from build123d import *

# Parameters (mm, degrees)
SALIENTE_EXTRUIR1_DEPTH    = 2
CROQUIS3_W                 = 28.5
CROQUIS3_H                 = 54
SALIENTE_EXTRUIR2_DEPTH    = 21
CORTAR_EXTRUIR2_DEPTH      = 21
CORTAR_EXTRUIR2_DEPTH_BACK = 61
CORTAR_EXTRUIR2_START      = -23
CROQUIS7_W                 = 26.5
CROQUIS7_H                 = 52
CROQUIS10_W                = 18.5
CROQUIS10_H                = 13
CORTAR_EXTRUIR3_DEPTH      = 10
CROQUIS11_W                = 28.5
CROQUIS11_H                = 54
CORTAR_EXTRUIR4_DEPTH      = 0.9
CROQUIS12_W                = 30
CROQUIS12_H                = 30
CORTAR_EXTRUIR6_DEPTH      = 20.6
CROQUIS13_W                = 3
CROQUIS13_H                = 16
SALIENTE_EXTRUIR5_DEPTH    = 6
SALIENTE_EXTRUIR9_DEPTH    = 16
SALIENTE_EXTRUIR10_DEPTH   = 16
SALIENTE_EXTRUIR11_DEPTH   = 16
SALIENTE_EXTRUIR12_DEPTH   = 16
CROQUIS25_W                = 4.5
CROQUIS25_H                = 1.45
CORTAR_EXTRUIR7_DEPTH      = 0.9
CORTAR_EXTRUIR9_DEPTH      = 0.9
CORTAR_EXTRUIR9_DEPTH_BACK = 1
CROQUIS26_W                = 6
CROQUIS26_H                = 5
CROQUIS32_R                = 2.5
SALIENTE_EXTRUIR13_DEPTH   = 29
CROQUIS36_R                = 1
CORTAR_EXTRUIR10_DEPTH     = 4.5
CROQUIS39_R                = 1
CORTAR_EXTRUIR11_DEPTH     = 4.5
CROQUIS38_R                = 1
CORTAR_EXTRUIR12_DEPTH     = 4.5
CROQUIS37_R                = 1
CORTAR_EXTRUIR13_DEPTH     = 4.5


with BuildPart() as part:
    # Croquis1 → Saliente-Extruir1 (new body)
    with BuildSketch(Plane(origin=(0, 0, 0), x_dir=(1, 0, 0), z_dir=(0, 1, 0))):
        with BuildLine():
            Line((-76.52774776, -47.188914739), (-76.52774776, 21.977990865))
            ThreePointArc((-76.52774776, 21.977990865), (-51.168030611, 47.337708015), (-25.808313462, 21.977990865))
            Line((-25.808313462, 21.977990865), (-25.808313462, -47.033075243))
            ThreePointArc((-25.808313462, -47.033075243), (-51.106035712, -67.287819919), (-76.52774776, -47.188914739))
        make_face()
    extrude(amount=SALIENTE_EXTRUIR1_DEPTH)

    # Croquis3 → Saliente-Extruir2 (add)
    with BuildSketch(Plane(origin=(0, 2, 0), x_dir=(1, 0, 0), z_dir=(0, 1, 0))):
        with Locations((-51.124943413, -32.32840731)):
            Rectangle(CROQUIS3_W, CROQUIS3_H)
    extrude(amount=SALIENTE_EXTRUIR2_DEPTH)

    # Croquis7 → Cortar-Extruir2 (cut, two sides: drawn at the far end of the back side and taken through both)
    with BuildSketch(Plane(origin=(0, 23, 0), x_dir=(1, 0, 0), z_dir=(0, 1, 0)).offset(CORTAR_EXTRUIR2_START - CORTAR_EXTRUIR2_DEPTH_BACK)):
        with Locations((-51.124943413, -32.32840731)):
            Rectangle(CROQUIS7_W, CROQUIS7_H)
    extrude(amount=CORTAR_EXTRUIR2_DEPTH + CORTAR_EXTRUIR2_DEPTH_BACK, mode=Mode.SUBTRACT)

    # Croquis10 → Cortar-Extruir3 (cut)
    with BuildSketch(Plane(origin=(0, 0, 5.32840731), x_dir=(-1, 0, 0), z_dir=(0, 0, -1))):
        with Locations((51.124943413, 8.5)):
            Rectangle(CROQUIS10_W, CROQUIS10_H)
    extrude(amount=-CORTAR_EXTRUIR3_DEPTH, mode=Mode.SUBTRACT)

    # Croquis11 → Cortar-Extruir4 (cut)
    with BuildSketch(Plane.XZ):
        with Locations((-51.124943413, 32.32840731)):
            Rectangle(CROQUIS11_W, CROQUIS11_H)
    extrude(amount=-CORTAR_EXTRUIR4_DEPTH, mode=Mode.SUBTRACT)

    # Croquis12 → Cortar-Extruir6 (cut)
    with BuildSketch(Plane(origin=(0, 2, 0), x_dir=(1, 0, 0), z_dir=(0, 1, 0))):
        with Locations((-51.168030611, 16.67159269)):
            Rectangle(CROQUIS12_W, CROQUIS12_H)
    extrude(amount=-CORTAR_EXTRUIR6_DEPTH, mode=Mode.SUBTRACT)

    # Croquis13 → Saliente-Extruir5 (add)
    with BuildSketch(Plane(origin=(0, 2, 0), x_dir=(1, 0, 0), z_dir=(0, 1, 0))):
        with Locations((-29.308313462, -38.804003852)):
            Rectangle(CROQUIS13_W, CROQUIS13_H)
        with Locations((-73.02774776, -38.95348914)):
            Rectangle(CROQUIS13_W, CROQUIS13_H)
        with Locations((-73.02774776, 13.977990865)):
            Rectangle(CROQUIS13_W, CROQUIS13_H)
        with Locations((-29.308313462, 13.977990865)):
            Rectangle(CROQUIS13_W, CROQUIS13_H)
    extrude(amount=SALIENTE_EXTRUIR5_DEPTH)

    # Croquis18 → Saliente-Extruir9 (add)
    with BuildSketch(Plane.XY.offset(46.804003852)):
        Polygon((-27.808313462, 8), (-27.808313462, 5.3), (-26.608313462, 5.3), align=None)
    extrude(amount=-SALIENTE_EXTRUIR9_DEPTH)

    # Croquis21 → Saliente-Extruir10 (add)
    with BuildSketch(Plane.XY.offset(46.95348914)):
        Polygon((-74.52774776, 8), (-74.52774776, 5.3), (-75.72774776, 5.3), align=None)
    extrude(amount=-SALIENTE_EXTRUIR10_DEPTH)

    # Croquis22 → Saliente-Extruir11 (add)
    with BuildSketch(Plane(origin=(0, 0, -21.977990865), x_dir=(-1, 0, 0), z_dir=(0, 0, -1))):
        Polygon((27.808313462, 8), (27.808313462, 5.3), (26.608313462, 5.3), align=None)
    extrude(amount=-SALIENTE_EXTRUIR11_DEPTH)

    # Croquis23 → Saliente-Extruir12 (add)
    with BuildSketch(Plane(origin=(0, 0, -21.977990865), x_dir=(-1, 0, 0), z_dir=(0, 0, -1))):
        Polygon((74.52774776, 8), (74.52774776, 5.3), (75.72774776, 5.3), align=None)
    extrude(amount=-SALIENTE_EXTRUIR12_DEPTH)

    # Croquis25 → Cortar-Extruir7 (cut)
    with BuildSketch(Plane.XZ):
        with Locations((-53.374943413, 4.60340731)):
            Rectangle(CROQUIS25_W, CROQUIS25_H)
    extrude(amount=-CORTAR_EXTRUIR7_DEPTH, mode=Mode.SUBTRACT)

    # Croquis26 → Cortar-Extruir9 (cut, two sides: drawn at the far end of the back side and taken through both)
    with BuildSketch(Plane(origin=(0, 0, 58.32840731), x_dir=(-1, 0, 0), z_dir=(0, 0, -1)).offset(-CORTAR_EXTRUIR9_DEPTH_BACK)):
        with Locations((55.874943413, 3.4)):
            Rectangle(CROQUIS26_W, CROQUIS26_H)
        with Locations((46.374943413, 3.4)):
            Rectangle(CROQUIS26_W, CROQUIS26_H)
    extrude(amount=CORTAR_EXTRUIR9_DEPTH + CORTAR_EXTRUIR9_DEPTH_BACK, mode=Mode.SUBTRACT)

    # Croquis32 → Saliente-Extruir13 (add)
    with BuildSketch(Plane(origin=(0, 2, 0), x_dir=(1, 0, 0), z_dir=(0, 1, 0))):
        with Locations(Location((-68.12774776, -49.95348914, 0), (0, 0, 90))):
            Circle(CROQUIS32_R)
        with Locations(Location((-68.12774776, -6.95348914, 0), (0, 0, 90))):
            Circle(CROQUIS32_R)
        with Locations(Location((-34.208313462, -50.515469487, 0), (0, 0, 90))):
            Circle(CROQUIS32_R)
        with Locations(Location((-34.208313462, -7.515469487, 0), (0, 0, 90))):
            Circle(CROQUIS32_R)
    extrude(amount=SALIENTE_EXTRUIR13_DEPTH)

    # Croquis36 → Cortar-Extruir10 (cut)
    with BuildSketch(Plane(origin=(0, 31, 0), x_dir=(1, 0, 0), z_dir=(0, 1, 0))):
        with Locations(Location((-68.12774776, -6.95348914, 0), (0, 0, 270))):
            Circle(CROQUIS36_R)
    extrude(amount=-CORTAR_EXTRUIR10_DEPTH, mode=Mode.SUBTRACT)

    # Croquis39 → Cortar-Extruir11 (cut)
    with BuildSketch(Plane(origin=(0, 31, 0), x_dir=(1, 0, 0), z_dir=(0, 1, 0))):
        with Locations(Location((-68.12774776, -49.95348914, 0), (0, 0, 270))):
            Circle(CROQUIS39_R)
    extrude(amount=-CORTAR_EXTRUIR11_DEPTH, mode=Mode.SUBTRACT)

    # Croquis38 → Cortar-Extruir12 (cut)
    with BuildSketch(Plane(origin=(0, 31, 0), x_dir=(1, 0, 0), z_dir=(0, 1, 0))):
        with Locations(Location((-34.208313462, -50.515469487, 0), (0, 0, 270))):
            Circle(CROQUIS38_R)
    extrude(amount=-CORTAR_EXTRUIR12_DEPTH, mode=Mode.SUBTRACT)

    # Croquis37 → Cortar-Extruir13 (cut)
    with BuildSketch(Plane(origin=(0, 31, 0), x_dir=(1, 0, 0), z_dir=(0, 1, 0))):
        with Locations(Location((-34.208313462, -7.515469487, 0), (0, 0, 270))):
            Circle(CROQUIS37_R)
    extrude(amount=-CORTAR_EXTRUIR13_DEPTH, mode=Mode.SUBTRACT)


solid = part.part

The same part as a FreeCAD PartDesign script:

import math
import FreeCAD as App
import Part
import Sketcher
from FreeCAD import Vector
Q = App.Units.Quantity


def add_polygon(sketch, points):
    """Adds a closed chain of lines whose ends are joined by coincident constraints."""
    first, n = sketch.GeometryCount, len(points)
    for a, b in zip(points, points[1:] + points[:1]):
        sketch.addGeometry(Part.LineSegment(App.Vector(*a, 0), App.Vector(*b, 0)), False)
    for i in range(n):
        sketch.addConstraint(Sketcher.Constraint("Coincident", first + i, 2, first + (i + 1) % n, 1))

doc = App.newDocument("Part")
body = doc.addObject("PartDesign::Body", "Body")

# Sketch on XZ plane
sketch1 = body.newObject("Sketcher::SketchObject", "Sketch")
sketch1.AttachmentSupport = (doc.getObject("XZ_Plane"), [""])
sketch1.MapMode = "FlatFace"
sketch1.addGeometry([
    Part.LineSegment(Vector(-77, -22, 0), Vector(-77, 47, 0)),
    Part.ArcOfCircle(Part.Circle(Vector(-51, 41, 0), Vector(0, 0, 1), 26), math.radians(13), math.radians(167)),
    Part.LineSegment(Vector(-26, 47, 0), Vector(-26, -22, 0)),
    Part.ArcOfCircle(Part.Circle(Vector(-51, -22, 0), Vector(0, 0, 1), 25), math.radians(180), math.radians(360)),
], False)
sketch1.addConstraint([
    Sketcher.Constraint("Coincident", 0, 2, 1, 2),
    Sketcher.Constraint("Coincident", 1, 1, 2, 1),
    Sketcher.Constraint("Tangent", 2, 2, 3, 2),
    Sketcher.Constraint("Tangent", 3, 1, 0, 1),
    Sketcher.Constraint("Vertical", 0),
    Sketcher.Constraint("Vertical", 2),
    Sketcher.Constraint("DistanceX", 1, 3, -1, 1, Q("51.186001 mm")),
    Sketcher.Constraint("Radius", 1, Q("26.025514 mm")),
    Sketcher.Constraint("Radius", 3, Q("25.359717 mm")),
    Sketcher.Constraint("DistanceY", 0, 1, 0, 2, Q("69.166906 mm")),
    Sketcher.Constraint("DistanceY", 2, 2, 2, 1, Q("69.011066 mm")),
    Sketcher.Constraint("DistanceY", -1, 1, 1, 3, Q("41.262429 mm")),
])
pad1 = body.newObject("PartDesign::Pad", "Pad")
pad1.Profile = sketch1
pad1.Length = 2
pad1.Reversed = True

# Sketch on XZ plane
sketch2 = body.newObject("Sketcher::SketchObject", "Sketch001")
sketch2.AttachmentSupport = (doc.getObject("XZ_Plane"), [""])
sketch2.MapMode = "FlatFace"
sketch2.AttachmentOffset = App.Placement(Vector(0, 0, -2), App.Rotation())
add_polygon(sketch2, [(-65, 5), (-65, 59), (-37, 59), (-37, 5)])  # lines 0-3
sketch2.addConstraint([
    Sketcher.Constraint("Vertical", 0),
    Sketcher.Constraint("Horizontal", 1),
    Sketcher.Constraint("Vertical", 2),
    Sketcher.Constraint("Horizontal", 3),
    Sketcher.Constraint("DistanceY", 0, 1, 0, 2, Q("54 mm")),
    Sketcher.Constraint("DistanceX", 1, 1, 1, 2, Q("28.5 mm")),
    Sketcher.Constraint("DistanceX", 0, 2, -1, 1, Q("65.374943 mm")),
    Sketcher.Constraint("DistanceY", -1, 1, 0, 2, Q("59.328407 mm")),
])
pad2 = body.newObject("PartDesign::Pad", "Pad001")
pad2.Profile = sketch2
pad2.Length = 21
pad2.Reversed = True

# Sketch on XZ plane
sketch3 = body.newObject("Sketcher::SketchObject", "Sketch002")
sketch3.AttachmentSupport = (doc.getObject("XZ_Plane"), [""])
sketch3.MapMode = "FlatFace"
add_polygon(sketch3, [(-64, 6), (-64, 58), (-38, 58), (-38, 6)])  # lines 0-3
sketch3.addConstraint([
    Sketcher.Constraint("Vertical", 0),
    Sketcher.Constraint("Horizontal", 1),
    Sketcher.Constraint("Vertical", 2),
    Sketcher.Constraint("Horizontal", 3),
    Sketcher.Constraint("DistanceY", 0, 1, 0, 2, Q("52 mm")),
    Sketcher.Constraint("DistanceX", 1, 1, 1, 2, Q("26.5 mm")),
    Sketcher.Constraint("DistanceX", 0, 2, -1, 1, Q("64.374943 mm")),
    Sketcher.Constraint("DistanceY", -1, 1, 0, 2, Q("58.328407 mm")),
])
pocket1 = body.newObject("PartDesign::Pocket", "Pocket")
pocket1.Profile = sketch3
pocket1.Type = "TwoLengths"
pocket1.Length = 21
pocket1.Length2 = 61

# Sketch on XY plane
sketch4 = body.newObject("Sketcher::SketchObject", "Sketch003")
sketch4.AttachmentSupport = (doc.getObject("XY_Plane"), [""])
sketch4.MapMode = "FlatFace"
sketch4.AttachmentOffset = App.Placement(Vector(0, 0, 5.328407), App.Rotation())
add_polygon(sketch4, [(-42, 15), (-42, 2), (-60, 2), (-60, 15)])  # lines 0-3
sketch4.addConstraint([
    Sketcher.Constraint("Vertical", 0),
    Sketcher.Constraint("Horizontal", 1),
    Sketcher.Constraint("Vertical", 2),
    Sketcher.Constraint("Horizontal", 3),
    Sketcher.Constraint("DistanceY", 0, 2, 0, 1, Q("13 mm")),
    Sketcher.Constraint("DistanceX", 1, 2, 1, 1, Q("18.5 mm")),
    Sketcher.Constraint("DistanceY", -1, 1, 0, 2, Q("2 mm")),
    Sketcher.Constraint("DistanceX", 0, 2, -1, 1, Q("41.874943 mm")),
])
pocket2 = body.newObject("PartDesign::Pocket", "Pocket001")
pocket2.Profile = sketch4
pocket2.Length = 10
pocket2.Reversed = True

# Sketch on XZ plane
sketch5 = body.newObject("Sketcher::SketchObject", "Sketch004")
sketch5.AttachmentSupport = (doc.getObject("XZ_Plane"), [""])
sketch5.MapMode = "FlatFace"
add_polygon(sketch5, [(-65, 59), (-65, 5), (-37, 5), (-37, 59)])  # lines 0-3
sketch5.addConstraint([
    Sketcher.Constraint("Vertical", 0),
    Sketcher.Constraint("Horizontal", 1),
    Sketcher.Constraint("Vertical", 2),
    Sketcher.Constraint("Horizontal", 3),
    Sketcher.Constraint("DistanceY", 0, 2, 0, 1, Q("54 mm")),
    Sketcher.Constraint("DistanceX", 1, 1, 1, 2, Q("28.5 mm")),
    Sketcher.Constraint("DistanceX", 0, 2, -1, 1, Q("65.374943 mm")),
    Sketcher.Constraint("DistanceY", -1, 1, 0, 2, Q("5.328407 mm")),
])
pocket3 = body.newObject("PartDesign::Pocket", "Pocket002")
pocket3.Profile = sketch5
pocket3.Length = 0.9

# Sketch on XZ plane
sketch6 = body.newObject("Sketcher::SketchObject", "Sketch005")
sketch6.AttachmentSupport = (doc.getObject("XZ_Plane"), [""])
sketch6.MapMode = "FlatFace"
sketch6.AttachmentOffset = App.Placement(Vector(0, 0, -2), App.Rotation())
add_polygon(sketch6, [(-66, -32), (-66, -2), (-36, -2), (-36, -32)])  # lines 0-3
sketch6.addConstraint([
    Sketcher.Constraint("Vertical", 0),
    Sketcher.Constraint("Horizontal", 1),
    Sketcher.Constraint("Vertical", 2),
    Sketcher.Constraint("Horizontal", 3),
    Sketcher.Constraint("Equal", 3, 0),
    Sketcher.Constraint("DistanceX", 1, 1, 1, 2, Q("30 mm")),
    Sketcher.Constraint("DistanceX", 0, 2, -1, 1, Q("66.168031 mm")),
    Sketcher.Constraint("DistanceY", 0, 2, -1, 1, Q("1.671593 mm")),
])
pocket4 = body.newObject("PartDesign::Pocket", "Pocket003")
pocket4.Profile = sketch6
pocket4.Length = 20.6
pocket4.Reversed = True

# Sketch on XZ plane
sketch7 = body.newObject("Sketcher::SketchObject", "Sketch006")
sketch7.AttachmentSupport = (doc.getObject("XZ_Plane"), [""])
sketch7.MapMode = "FlatFace"
sketch7.AttachmentOffset = App.Placement(Vector(0, 0, -2), App.Rotation())
add_polygon(sketch7, [(-30.8, 30.8), (-30.8, 46.8), (-27.8, 46.8), (-27.8, 30.8)])  # lines 0-3
add_polygon(sketch7, [(-74.5, 31), (-74.5, 47), (-71.5, 47), (-71.5, 31)])  # lines 4-7
add_polygon(sketch7, [(-74.5, -22), (-74.5, -6), (-71.5, -6), (-71.5, -22)])  # lines 8-11
add_polygon(sketch7, [(-30.8, -22), (-30.8, -6), (-27.8, -6), (-27.8, -22)])  # lines 12-15
sketch7.addConstraint([
    Sketcher.Constraint("Vertical", 0),
    Sketcher.Constraint("Horizontal", 1),
    Sketcher.Constraint("Vertical", 2),
    Sketcher.Constraint("Horizontal", 3),
    Sketcher.Constraint("Vertical", 4),
    Sketcher.Constraint("Horizontal", 5),
    Sketcher.Constraint("Vertical", 6),
    Sketcher.Constraint("Horizontal", 7),
    Sketcher.Constraint("Vertical", 8),
    Sketcher.Constraint("Horizontal", 9),
    Sketcher.Constraint("Vertical", 10),
    Sketcher.Constraint("Horizontal", 11),
    Sketcher.Constraint("Vertical", 12),
    Sketcher.Constraint("Horizontal", 13),
    Sketcher.Constraint("Vertical", 14),
    Sketcher.Constraint("Horizontal", 15),
    Sketcher.Constraint("Horizontal", 9, 2, 12, 2),
    Sketcher.Constraint("Horizontal", 11, 2, 14, 2),
    Sketcher.Constraint("Vertical", 7, 2, 8, 2),
    Sketcher.Constraint("Vertical", 6, 2, 9, 2),
    Sketcher.Constraint("Vertical", 3, 2, 12, 2),
    Sketcher.Constraint("Vertical", 2, 2, 13, 2),
    Sketcher.Constraint("Equal", 3, 5),
    Sketcher.Constraint("Equal", 2, 4),
    Sketcher.Constraint("Equal", 6, 8),
    Sketcher.Constraint("DistanceX", 1, 1, 1, 2, Q("3 mm")),
    Sketcher.Constraint("DistanceY", 0, 1, 0, 2, Q("16 mm")),
    Sketcher.Constraint("DistanceY", -1, 1, 4, 2, Q("46.953489 mm")),
    Sketcher.Constraint("DistanceY", 8, 2, -1, 1, Q("5.977991 mm")),
    Sketcher.Constraint("DistanceX", 0, 2, -1, 1, Q("30.808313 mm")),
    Sketcher.Constraint("DistanceY", -1, 1, 0, 2, Q("46.804004 mm")),
    Sketcher.Constraint("DistanceX", 4, 2, -1, 1, Q("74.527748 mm")),
])
pad3 = body.newObject("PartDesign::Pad", "Pad002")
pad3.Profile = sketch7
pad3.Length = 6
pad3.Reversed = True

# Sketch on XY plane
sketch8 = body.newObject("Sketcher::SketchObject", "Sketch007")
sketch8.AttachmentSupport = (doc.getObject("XY_Plane"), [""])
sketch8.MapMode = "FlatFace"
sketch8.AttachmentOffset = App.Placement(Vector(0, 0, 46.804004), App.Rotation())
add_polygon(sketch8, [(-27.8, 8), (-27.8, 5.3), (-26.6, 5.3)])  # lines 0-2
sketch8.addConstraint([
    Sketcher.Constraint("Vertical", 0),
    Sketcher.Constraint("Horizontal", 1),
    Sketcher.Constraint("DistanceX", 1, 1, 1, 2, Q("1.2 mm")),
    Sketcher.Constraint("DistanceY", 0, 2, 0, 1, Q("2.7 mm")),
    Sketcher.Constraint("DistanceY", -1, 1, 2, 2, Q("8 mm")),
    Sketcher.Constraint("DistanceX", 0, 2, -1, 1, Q("27.808313 mm")),
])
pad4 = body.newObject("PartDesign::Pad", "Pad003")
pad4.Profile = sketch8
pad4.Length = 16
pad4.Reversed = True

# Sketch on XY plane
sketch9 = body.newObject("Sketcher::SketchObject", "Sketch008")
sketch9.AttachmentSupport = (doc.getObject("XY_Plane"), [""])
sketch9.MapMode = "FlatFace"
sketch9.AttachmentOffset = App.Placement(Vector(0, 0, 46.953489), App.Rotation())
add_polygon(sketch9, [(-74.5, 5.3), (-74.5, 8), (-75.7, 5.3)])  # lines 0-2
sketch9.addConstraint([
    Sketcher.Constraint("Vertical", 0),
    Sketcher.Constraint("Horizontal", 2),
    Sketcher.Constraint("DistanceX", 2, 1, 2, 2, Q("1.2 mm")),
    Sketcher.Constraint("DistanceY", 0, 1, 0, 2, Q("2.7 mm")),
    Sketcher.Constraint("DistanceY", -1, 1, 0, 2, Q("8 mm")),
    Sketcher.Constraint("DistanceX", 0, 2, -1, 1, Q("74.527748 mm")),
])
pad5 = body.newObject("PartDesign::Pad", "Pad004")
pad5.Profile = sketch9
pad5.Length = 16
pad5.Reversed = True

# Sketch on XY plane
sketch10 = body.newObject("Sketcher::SketchObject", "Sketch009")
sketch10.AttachmentSupport = (doc.getObject("XY_Plane"), [""])
sketch10.MapMode = "FlatFace"
sketch10.AttachmentOffset = App.Placement(Vector(0, 0, -21.977991), App.Rotation())
add_polygon(sketch10, [(-27.8, 5.3), (-27.8, 8), (-26.6, 5.3)])  # lines 0-2
sketch10.addConstraint([
    Sketcher.Constraint("Vertical", 0),
    Sketcher.Constraint("Horizontal", 2),
    Sketcher.Constraint("DistanceX", 2, 2, 2, 1, Q("1.2 mm")),
    Sketcher.Constraint("DistanceY", 0, 1, 0, 2, Q("2.7 mm")),
    Sketcher.Constraint("DistanceY", -1, 1, 0, 2, Q("8 mm")),
    Sketcher.Constraint("DistanceX", 0, 2, -1, 1, Q("27.808313 mm")),
])
pad6 = body.newObject("PartDesign::Pad", "Pad005")
pad6.Profile = sketch10
pad6.Length = 16

# Sketch on XY plane
sketch11 = body.newObject("Sketcher::SketchObject", "Sketch010")
sketch11.AttachmentSupport = (doc.getObject("XY_Plane"), [""])
sketch11.MapMode = "FlatFace"
sketch11.AttachmentOffset = App.Placement(Vector(0, 0, -21.977991), App.Rotation())
add_polygon(sketch11, [(-74.5, 8), (-74.5, 5.3), (-75.7, 5.3)])  # lines 0-2
sketch11.addConstraint([
    Sketcher.Constraint("Vertical", 0),
    Sketcher.Constraint("Horizontal", 1),
    Sketcher.Constraint("DistanceX", 1, 2, 1, 1, Q("1.2 mm")),
    Sketcher.Constraint("DistanceY", 0, 2, 0, 1, Q("2.7 mm")),
    Sketcher.Constraint("DistanceY", -1, 1, 2, 2, Q("8 mm")),
    Sketcher.Constraint("DistanceX", 0, 2, -1, 1, Q("74.527748 mm")),
])
pad7 = body.newObject("PartDesign::Pad", "Pad006")
pad7.Profile = sketch11
pad7.Length = 16

# Sketch on XZ plane
sketch12 = body.newObject("Sketcher::SketchObject", "Sketch011")
sketch12.AttachmentSupport = (doc.getObject("XZ_Plane"), [""])
sketch12.MapMode = "FlatFace"
add_polygon(sketch12, [(-55.6, 5.3), (-55.6, 3.9), (-51.1, 3.9), (-51.1, 5.3)])  # lines 0-3
sketch12.addConstraint([
    Sketcher.Constraint("Vertical", 0),
    Sketcher.Constraint("Horizontal", 1),
    Sketcher.Constraint("Vertical", 2),
    Sketcher.Constraint("Horizontal", 3),
    Sketcher.Constraint("DistanceX", 1, 1, 1, 2, Q("4.5 mm")),
    Sketcher.Constraint("DistanceY", 0, 2, 0, 1, Q("1.45 mm")),
    Sketcher.Constraint("DistanceX", 0, 2, -1, 1, Q("55.624943 mm")),
    Sketcher.Constraint("DistanceY", -1, 1, 0, 2, Q("3.878407 mm")),
])
pocket5 = body.newObject("PartDesign::Pocket", "Pocket004")
pocket5.Profile = sketch12
pocket5.Length = 0.9

# Sketch on XY plane
sketch13 = body.newObject("Sketcher::SketchObject", "Sketch012")
sketch13.AttachmentSupport = (doc.getObject("XY_Plane"), [""])
sketch13.MapMode = "FlatFace"
sketch13.AttachmentOffset = App.Placement(Vector(0, 0, 58.328407), App.Rotation())
add_polygon(sketch13, [(-53, 6), (-53, 1), (-59, 1), (-59, 6)])  # lines 0-3
add_polygon(sketch13, [(-43, 6), (-43, 1), (-49, 1), (-49, 6)])  # lines 4-7
sketch13.addConstraint([
    Sketcher.Constraint("Vertical", 0),
    Sketcher.Constraint("Horizontal", 1),
    Sketcher.Constraint("Vertical", 2),
    Sketcher.Constraint("Horizontal", 3),
    Sketcher.Constraint("Vertical", 4),
    Sketcher.Constraint("Horizontal", 5),
    Sketcher.Constraint("Vertical", 6),
    Sketcher.Constraint("Horizontal", 7),
    Sketcher.Constraint("Horizontal", 1, 2, 4, 2),
    Sketcher.Constraint("Horizontal", 3, 2, 6, 2),
    Sketcher.Constraint("Equal", 3, 5),
    Sketcher.Constraint("DistanceX", 1, 2, 1, 1, Q("6 mm")),
    Sketcher.Constraint("DistanceY", 0, 2, 0, 1, Q("5 mm")),
    Sketcher.Constraint("DistanceY", -1, 1, 0, 2, Q("0.9 mm")),
    Sketcher.Constraint("DistanceX", 0, 2, 4, 2, Q("9.5 mm")),
    Sketcher.Constraint("DistanceX", 0, 2, -1, 1, Q("52.874943 mm")),
])
pocket6 = body.newObject("PartDesign::Pocket", "Pocket005")
pocket6.Profile = sketch13
pocket6.Type = "TwoLengths"
pocket6.Length = 0.9
pocket6.Length2 = 1

# Sketch on XZ plane
sketch14 = body.newObject("Sketcher::SketchObject", "Sketch013")
sketch14.AttachmentSupport = (doc.getObject("XZ_Plane"), [""])
sketch14.MapMode = "FlatFace"
sketch14.AttachmentOffset = App.Placement(Vector(0, 0, -2), App.Rotation())
sketch14.addGeometry([
    Part.Circle(Vector(-68.1, 50, 0), Vector(0, 0, 1), 2.5),
    Part.Circle(Vector(-68.1, 7, 0), Vector(0, 0, 1), 2.5),
    Part.Circle(Vector(-34.2, 50.5, 0), Vector(0, 0, 1), 2.5),
    Part.Circle(Vector(-34.2, 7.5, 0), Vector(0, 0, 1), 2.5),
], False)
sketch14.addConstraint([
    Sketcher.Constraint("Equal", 0, 1),
    Sketcher.Constraint("Equal", 1, 2),
    Sketcher.Constraint("Equal", 2, 3),
    Sketcher.Constraint("Vertical", 0, 3, 1, 3),
    Sketcher.Constraint("Vertical", 2, 3, 3, 3),
    Sketcher.Constraint("Diameter", 0, Q("5 mm")),
    Sketcher.Constraint("DistanceY", 1, 3, 0, 3, Q("43 mm")),
    Sketcher.Constraint("DistanceY", 3, 3, 2, 3, Q("43 mm")),
    Sketcher.Constraint("DistanceY", -1, 1, 0, 3, Q("49.953489 mm")),
    Sketcher.Constraint("DistanceY", -1, 1, 2, 3, Q("50.515469 mm")),
    Sketcher.Constraint("DistanceX", 0, 3, -1, 1, Q("68.127748 mm")),
    Sketcher.Constraint("DistanceX", 2, 3, -1, 1, Q("34.208313 mm")),
])
pad8 = body.newObject("PartDesign::Pad", "Pad007")
pad8.Profile = sketch14
pad8.Length = 29
pad8.Reversed = True

# Sketch on XZ plane
sketch15 = body.newObject("Sketcher::SketchObject", "Sketch014")
sketch15.AttachmentSupport = (doc.getObject("XZ_Plane"), [""])
sketch15.MapMode = "FlatFace"
sketch15.AttachmentOffset = App.Placement(Vector(0, 0, -31), App.Rotation())
sketch15.addGeometry(Part.Circle(Vector(-68.1, 7, 0), Vector(0, 0, 1), 1), False)
sketch15.addConstraint([
    Sketcher.Constraint("Diameter", 0, Q("2 mm")),
    Sketcher.Constraint("DistanceY", -1, 1, 0, 3, Q("6.953489 mm")),
    Sketcher.Constraint("DistanceX", 0, 3, -1, 1, Q("68.127748 mm")),
])
pocket7 = body.newObject("PartDesign::Pocket", "Pocket006")
pocket7.Profile = sketch15
pocket7.Length = 4.5
pocket7.Reversed = True

# Sketch on XZ plane
sketch16 = body.newObject("Sketcher::SketchObject", "Sketch015")
sketch16.AttachmentSupport = (doc.getObject("XZ_Plane"), [""])
sketch16.MapMode = "FlatFace"
sketch16.AttachmentOffset = App.Placement(Vector(0, 0, -31), App.Rotation())
sketch16.addGeometry(Part.Circle(Vector(-68.1, 50, 0), Vector(0, 0, 1), 1), False)
sketch16.addConstraint([
    Sketcher.Constraint("Diameter", 0, Q("2 mm")),
    Sketcher.Constraint("DistanceY", -1, 1, 0, 3, Q("49.953489 mm")),
    Sketcher.Constraint("DistanceX", 0, 3, -1, 1, Q("68.127748 mm")),
])
pocket8 = body.newObject("PartDesign::Pocket", "Pocket007")
pocket8.Profile = sketch16
pocket8.Length = 4.5
pocket8.Reversed = True

# Sketch on XZ plane
sketch17 = body.newObject("Sketcher::SketchObject", "Sketch016")
sketch17.AttachmentSupport = (doc.getObject("XZ_Plane"), [""])
sketch17.MapMode = "FlatFace"
sketch17.AttachmentOffset = App.Placement(Vector(0, 0, -31), App.Rotation())
sketch17.addGeometry(Part.Circle(Vector(-34.2, 50.5, 0), Vector(0, 0, 1), 1), False)
sketch17.addConstraint([
    Sketcher.Constraint("Diameter", 0, Q("2 mm")),
    Sketcher.Constraint("DistanceY", -1, 1, 0, 3, Q("50.515469 mm")),
    Sketcher.Constraint("DistanceX", 0, 3, -1, 1, Q("34.208313 mm")),
])
pocket9 = body.newObject("PartDesign::Pocket", "Pocket008")
pocket9.Profile = sketch17
pocket9.Length = 4.5
pocket9.Reversed = True

# Sketch on XZ plane
sketch18 = body.newObject("Sketcher::SketchObject", "Sketch017")
sketch18.AttachmentSupport = (doc.getObject("XZ_Plane"), [""])
sketch18.MapMode = "FlatFace"
sketch18.AttachmentOffset = App.Placement(Vector(0, 0, -31), App.Rotation())
sketch18.addGeometry(Part.Circle(Vector(-34.2, 7.5, 0), Vector(0, 0, 1), 1), False)
sketch18.addConstraint([
    Sketcher.Constraint("Diameter", 0, Q("2 mm")),
    Sketcher.Constraint("DistanceY", -1, 1, 0, 3, Q("7.515469 mm")),
    Sketcher.Constraint("DistanceX", 0, 3, -1, 1, Q("34.208313 mm")),
])
pocket10 = body.newObject("PartDesign::Pocket", "Pocket009")
pocket10.Profile = sketch18
pocket10.Length = 4.5
pocket10.Reversed = True

doc.recompute()
